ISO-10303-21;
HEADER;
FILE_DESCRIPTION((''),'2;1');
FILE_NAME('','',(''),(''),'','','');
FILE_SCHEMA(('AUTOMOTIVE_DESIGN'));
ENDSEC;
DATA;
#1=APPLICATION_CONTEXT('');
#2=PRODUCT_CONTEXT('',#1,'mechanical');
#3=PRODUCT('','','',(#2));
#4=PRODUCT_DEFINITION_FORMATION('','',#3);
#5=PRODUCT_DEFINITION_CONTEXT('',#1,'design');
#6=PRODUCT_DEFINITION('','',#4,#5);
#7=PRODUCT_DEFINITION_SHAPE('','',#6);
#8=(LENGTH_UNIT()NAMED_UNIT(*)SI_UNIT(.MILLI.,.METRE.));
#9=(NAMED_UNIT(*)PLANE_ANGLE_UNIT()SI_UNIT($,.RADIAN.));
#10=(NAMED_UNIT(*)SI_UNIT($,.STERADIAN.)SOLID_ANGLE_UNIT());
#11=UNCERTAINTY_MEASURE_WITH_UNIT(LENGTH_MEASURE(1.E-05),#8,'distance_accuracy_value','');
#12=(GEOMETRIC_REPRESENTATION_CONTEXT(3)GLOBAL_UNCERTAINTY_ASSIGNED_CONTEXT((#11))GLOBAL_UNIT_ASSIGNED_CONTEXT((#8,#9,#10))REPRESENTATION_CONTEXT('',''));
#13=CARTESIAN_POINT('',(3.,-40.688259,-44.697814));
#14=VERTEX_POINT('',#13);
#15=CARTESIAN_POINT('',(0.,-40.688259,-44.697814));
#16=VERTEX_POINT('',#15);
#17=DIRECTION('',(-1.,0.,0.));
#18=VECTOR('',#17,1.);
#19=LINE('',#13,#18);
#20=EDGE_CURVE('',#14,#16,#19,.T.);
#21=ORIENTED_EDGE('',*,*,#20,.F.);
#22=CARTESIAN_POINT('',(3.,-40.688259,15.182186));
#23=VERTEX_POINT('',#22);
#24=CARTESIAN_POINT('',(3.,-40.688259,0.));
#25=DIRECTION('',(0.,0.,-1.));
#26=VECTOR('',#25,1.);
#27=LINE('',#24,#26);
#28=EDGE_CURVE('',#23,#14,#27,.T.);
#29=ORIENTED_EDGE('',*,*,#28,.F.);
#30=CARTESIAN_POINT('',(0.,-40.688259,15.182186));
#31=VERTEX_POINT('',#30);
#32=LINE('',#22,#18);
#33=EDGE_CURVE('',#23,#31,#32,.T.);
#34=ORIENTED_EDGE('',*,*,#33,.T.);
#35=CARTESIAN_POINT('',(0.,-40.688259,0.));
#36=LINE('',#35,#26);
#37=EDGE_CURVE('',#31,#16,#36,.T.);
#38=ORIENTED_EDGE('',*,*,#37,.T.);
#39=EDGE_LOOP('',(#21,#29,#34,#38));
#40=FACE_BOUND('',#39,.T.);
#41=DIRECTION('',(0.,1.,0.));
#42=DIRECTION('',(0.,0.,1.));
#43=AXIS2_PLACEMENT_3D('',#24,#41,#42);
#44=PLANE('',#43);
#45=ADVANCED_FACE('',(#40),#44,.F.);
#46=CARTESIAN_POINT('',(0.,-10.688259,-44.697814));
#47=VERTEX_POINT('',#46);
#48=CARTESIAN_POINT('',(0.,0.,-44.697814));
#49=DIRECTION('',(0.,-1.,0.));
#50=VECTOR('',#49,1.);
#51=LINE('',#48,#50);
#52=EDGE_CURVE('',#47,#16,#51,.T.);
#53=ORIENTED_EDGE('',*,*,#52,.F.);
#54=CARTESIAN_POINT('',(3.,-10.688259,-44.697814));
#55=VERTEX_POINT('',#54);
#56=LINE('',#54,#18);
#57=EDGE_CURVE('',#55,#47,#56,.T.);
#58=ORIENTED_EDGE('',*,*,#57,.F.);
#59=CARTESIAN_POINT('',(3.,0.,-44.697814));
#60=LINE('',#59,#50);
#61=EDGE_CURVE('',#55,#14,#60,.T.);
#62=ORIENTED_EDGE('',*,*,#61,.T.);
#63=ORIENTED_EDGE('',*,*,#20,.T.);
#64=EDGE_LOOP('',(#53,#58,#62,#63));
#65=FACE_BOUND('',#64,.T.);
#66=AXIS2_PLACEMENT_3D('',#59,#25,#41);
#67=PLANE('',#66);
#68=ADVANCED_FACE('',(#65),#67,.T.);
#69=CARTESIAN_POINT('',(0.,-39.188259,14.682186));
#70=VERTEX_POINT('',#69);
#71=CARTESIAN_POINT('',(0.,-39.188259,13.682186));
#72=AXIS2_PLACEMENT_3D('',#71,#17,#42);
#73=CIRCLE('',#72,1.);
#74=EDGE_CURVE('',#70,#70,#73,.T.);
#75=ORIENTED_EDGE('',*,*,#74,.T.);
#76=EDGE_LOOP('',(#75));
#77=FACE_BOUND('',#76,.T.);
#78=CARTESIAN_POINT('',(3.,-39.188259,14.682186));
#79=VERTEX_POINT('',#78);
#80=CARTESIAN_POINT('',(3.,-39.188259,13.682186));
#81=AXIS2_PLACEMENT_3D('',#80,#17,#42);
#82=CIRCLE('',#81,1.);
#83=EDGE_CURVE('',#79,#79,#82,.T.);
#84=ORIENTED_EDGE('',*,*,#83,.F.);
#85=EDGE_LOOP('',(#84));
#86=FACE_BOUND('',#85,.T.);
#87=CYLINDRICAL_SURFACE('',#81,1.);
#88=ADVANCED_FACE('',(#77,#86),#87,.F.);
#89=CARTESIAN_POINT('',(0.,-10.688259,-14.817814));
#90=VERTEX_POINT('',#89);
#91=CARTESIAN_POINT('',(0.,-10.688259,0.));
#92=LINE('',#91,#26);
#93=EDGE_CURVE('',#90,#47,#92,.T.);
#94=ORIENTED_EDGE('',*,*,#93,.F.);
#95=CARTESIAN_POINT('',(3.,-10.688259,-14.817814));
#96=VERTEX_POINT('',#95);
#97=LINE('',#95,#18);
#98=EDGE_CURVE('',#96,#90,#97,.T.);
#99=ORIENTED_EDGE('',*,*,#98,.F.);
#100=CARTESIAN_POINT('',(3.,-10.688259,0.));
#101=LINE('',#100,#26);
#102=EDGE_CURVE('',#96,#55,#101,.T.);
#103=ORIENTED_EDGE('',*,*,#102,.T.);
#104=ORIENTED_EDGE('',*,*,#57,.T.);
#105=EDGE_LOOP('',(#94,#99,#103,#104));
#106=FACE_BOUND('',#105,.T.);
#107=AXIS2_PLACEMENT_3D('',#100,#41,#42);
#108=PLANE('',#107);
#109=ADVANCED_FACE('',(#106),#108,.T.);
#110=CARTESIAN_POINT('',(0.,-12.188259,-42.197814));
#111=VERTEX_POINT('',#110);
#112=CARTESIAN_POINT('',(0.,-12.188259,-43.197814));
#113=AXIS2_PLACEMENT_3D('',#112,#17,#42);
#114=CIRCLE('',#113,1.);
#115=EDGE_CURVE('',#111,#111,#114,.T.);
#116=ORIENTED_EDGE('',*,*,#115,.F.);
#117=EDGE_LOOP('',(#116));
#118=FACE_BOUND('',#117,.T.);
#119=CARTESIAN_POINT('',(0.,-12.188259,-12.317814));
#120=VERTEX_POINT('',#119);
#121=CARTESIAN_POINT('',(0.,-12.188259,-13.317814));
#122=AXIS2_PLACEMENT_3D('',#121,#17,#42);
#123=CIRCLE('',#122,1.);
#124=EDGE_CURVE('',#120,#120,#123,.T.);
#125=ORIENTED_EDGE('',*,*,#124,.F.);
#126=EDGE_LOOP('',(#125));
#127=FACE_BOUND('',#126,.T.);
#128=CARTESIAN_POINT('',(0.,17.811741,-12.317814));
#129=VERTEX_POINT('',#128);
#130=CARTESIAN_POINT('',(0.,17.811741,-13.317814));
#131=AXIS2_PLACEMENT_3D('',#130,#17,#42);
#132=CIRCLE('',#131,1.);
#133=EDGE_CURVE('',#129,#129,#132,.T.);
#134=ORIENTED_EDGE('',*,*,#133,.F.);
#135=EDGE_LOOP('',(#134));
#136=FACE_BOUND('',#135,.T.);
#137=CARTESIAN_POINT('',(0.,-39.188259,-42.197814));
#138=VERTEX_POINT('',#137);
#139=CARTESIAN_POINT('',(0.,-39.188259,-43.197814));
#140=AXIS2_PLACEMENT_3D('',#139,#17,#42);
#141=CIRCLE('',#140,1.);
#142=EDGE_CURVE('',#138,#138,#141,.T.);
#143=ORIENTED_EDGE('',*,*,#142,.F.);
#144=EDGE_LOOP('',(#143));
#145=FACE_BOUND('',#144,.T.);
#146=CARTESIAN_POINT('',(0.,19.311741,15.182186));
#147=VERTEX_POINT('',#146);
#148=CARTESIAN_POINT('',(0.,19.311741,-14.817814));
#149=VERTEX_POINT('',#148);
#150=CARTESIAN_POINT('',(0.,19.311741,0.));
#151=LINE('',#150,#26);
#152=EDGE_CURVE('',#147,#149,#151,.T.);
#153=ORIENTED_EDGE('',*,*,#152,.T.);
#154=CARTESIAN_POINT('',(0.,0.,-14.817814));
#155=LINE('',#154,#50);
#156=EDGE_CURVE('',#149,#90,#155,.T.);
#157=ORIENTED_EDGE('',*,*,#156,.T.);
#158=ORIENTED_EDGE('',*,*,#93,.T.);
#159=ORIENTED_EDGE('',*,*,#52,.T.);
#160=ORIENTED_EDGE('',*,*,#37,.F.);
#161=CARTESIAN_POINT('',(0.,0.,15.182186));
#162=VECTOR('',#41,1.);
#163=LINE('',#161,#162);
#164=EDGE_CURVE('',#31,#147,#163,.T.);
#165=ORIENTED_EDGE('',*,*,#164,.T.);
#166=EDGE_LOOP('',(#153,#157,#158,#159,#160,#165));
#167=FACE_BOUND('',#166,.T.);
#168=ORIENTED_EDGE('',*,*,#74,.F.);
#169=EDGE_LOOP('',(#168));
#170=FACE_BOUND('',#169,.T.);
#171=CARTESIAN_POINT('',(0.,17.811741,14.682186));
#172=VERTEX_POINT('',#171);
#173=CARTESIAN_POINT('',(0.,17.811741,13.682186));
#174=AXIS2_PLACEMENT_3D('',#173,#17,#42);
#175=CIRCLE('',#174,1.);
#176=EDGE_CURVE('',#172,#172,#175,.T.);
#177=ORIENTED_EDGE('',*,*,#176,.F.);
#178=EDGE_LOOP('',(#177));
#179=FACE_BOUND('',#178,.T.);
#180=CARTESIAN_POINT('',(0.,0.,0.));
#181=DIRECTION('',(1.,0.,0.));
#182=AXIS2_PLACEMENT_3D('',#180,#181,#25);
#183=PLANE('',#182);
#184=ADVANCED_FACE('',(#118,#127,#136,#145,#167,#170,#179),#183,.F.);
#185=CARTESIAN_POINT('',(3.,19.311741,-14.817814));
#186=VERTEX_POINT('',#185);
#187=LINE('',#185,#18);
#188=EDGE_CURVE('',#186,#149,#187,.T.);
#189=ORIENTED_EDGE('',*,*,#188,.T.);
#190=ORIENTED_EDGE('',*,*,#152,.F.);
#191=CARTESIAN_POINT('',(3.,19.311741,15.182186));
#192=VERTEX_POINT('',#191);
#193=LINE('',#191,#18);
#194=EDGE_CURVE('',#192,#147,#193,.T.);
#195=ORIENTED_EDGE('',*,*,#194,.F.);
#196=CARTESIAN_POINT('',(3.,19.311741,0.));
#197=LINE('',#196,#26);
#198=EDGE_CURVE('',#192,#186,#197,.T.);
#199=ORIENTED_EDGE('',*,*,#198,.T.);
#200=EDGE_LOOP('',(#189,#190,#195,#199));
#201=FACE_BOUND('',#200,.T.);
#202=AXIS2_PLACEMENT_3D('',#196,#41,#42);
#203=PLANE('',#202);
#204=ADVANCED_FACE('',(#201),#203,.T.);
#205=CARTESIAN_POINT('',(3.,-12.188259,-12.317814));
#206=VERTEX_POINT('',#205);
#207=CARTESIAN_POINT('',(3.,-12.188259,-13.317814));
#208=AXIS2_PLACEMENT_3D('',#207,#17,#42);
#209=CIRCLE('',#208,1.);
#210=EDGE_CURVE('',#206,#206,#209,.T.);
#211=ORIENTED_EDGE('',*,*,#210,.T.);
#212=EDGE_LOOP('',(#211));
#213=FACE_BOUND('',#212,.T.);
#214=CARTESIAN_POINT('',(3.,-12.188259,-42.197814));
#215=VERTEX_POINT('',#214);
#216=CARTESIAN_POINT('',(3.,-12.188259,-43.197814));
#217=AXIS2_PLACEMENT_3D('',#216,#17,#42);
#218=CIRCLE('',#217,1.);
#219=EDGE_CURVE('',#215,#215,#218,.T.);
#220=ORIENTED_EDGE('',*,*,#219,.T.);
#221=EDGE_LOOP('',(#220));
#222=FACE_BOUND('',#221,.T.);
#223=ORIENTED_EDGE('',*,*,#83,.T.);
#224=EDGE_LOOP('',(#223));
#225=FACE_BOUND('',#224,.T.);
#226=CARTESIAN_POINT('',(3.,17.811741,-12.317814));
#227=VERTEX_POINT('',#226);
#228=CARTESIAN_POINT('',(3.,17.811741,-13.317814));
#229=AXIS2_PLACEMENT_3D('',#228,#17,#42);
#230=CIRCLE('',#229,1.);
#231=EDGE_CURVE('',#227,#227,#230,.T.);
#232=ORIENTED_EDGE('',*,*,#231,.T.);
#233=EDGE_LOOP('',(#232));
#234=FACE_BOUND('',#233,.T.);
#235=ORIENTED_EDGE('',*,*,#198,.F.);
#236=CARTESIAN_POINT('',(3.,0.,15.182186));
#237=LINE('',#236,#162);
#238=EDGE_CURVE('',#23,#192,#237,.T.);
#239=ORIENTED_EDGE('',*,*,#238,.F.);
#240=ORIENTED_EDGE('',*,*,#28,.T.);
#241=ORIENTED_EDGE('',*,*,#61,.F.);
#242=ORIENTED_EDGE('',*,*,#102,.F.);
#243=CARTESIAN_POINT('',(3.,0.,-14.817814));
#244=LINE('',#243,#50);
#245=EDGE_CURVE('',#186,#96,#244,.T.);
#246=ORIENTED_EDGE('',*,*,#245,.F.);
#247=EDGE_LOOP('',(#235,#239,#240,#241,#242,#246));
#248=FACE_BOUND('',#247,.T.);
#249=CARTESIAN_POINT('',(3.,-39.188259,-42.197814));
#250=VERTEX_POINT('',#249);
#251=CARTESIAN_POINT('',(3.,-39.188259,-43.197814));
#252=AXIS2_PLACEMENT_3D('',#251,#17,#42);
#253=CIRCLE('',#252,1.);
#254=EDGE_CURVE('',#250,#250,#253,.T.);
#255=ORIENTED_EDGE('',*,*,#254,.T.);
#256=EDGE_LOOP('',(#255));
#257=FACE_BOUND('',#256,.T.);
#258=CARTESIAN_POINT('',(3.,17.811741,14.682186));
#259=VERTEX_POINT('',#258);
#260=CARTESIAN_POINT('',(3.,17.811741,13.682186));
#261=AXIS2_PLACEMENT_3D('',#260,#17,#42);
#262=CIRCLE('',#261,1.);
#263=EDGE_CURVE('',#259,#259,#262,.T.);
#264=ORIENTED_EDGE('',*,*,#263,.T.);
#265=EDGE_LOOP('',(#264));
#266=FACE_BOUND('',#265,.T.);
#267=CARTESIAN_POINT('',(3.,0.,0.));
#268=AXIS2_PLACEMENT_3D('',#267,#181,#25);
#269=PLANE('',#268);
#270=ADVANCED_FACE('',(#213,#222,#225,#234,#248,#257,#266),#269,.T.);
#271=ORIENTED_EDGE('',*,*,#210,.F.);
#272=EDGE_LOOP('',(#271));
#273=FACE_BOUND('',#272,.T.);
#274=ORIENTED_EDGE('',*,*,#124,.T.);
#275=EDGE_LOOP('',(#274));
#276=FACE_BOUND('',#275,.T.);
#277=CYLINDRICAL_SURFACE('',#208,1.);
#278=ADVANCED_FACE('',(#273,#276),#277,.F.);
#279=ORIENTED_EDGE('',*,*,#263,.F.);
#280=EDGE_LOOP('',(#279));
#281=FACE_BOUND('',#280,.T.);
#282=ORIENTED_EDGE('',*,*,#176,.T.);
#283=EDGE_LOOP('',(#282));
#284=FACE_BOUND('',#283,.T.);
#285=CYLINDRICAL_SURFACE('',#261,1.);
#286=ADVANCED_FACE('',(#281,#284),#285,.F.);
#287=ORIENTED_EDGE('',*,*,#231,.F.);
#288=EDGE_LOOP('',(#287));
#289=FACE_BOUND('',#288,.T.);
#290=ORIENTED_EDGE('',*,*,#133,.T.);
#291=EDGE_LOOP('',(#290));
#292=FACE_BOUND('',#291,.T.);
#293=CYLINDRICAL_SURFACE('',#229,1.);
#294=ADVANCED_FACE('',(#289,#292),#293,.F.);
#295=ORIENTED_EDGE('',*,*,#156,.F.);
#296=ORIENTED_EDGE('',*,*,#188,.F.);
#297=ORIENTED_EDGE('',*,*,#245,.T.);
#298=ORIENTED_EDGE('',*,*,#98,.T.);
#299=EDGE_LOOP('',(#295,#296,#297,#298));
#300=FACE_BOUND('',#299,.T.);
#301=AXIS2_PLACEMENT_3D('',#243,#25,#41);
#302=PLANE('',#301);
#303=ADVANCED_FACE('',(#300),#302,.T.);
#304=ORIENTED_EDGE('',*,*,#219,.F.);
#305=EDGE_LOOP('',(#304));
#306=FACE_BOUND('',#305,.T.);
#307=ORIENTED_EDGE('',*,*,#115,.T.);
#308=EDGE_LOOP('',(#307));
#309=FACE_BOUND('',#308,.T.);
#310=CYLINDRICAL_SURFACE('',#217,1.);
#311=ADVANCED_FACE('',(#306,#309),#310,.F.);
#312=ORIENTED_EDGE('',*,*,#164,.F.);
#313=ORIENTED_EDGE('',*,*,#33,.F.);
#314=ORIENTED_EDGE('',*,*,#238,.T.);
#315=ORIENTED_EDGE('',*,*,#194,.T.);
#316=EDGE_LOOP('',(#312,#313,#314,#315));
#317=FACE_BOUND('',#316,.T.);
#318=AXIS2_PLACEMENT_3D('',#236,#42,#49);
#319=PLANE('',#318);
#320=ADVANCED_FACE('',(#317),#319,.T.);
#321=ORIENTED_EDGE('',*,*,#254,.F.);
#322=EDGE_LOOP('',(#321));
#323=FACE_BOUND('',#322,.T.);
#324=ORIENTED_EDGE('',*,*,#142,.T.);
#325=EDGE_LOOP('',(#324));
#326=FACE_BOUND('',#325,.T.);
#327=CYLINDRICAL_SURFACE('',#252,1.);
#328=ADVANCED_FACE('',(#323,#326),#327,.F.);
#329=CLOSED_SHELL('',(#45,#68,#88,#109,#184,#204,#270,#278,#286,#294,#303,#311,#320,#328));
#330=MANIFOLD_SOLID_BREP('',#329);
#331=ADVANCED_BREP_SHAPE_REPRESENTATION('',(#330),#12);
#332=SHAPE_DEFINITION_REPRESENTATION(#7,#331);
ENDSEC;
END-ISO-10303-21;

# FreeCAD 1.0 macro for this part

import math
import FreeCAD as App
import Part
import Sketcher

V = App.Vector
Q = App.Units.Quantity

doc = App.newDocument("Part")
params = doc.addObject("Spreadsheet::Sheet", "Params")
for row, (alias, value) in enumerate([
    ("sketch1_width", "30 mm"),
    ("sketch1_height", "29.88 mm"),
    ("pad1_length", "3 mm"),
    ("sketch2_radius", "1 mm"),
    ("pocket1_length", "3 mm"),
], start=1):
    params.set(f"A{row}", alias)
    params.set(f"B{row}", "=" + value)
    params.setAlias(f"B{row}", alias)

body = doc.addObject("PartDesign::Body", "Body")

# Sketch on YZ plane
sketch1 = doc.addObject("Sketcher::SketchObject", "Sketch")
body.addObject(sketch1)
sketch1.AttachmentSupport = (doc.YZ_Plane, [""])
sketch1.MapMode = "FlatFace"
sketch1.addGeometry(Part.LineSegment(V(-40.688259, -44.697814, 0), V(-10.688259, -44.697814, 0)), False)
sketch1.addGeometry(Part.LineSegment(V(-10.688259, -44.697814, 0), V(-10.688259, -14.817814, 0)), False)
sketch1.addGeometry(Part.LineSegment(V(-10.688259, -14.817814, 0), V(19.311741, -14.817814, 0)), False)
sketch1.addGeometry(Part.LineSegment(V(19.311741, -14.817814, 0), V(19.311741, 15.182186, 0)), False)
sketch1.addGeometry(Part.LineSegment(V(19.311741, 15.182186, 0), V(-40.688259, 15.182186, 0)), False)
sketch1.addGeometry(Part.LineSegment(V(-40.688259, 15.182186, 0), V(-40.688259, -44.697814, 0)), False)
sketch1.addConstraint(Sketcher.Constraint("Coincident", 0, 2, 1, 1))
sketch1.addConstraint(Sketcher.Constraint("Coincident", 1, 2, 2, 1))
sketch1.addConstraint(Sketcher.Constraint("Coincident", 2, 2, 3, 1))
sketch1.addConstraint(Sketcher.Constraint("Coincident", 3, 2, 4, 1))
sketch1.addConstraint(Sketcher.Constraint("Coincident", 4, 2, 5, 1))
sketch1.addConstraint(Sketcher.Constraint("Coincident", 5, 2, 0, 1))
sketch1.addConstraint(Sketcher.Constraint("Horizontal", 0))
sketch1.addConstraint(Sketcher.Constraint("Vertical", 1))
sketch1.addConstraint(Sketcher.Constraint("Horizontal", 2))
sketch1.addConstraint(Sketcher.Constraint("Vertical", 3))
sketch1.addConstraint(Sketcher.Constraint("Horizontal", 4))
sketch1.addConstraint(Sketcher.Constraint("Vertical", 5))
sketch1.addConstraint(Sketcher.Constraint("Equal", 0, 2))
sketch1.addConstraint(Sketcher.Constraint("Equal", 2, 3))
sketch1.addConstraint(Sketcher.Constraint("DistanceX", 0, 1, 0, 2, Q("30 mm")))
sketch1.addConstraint(Sketcher.Constraint("DistanceY", 1, 1, 1, 2, Q("29.88 mm")))
sketch1.addConstraint(Sketcher.Constraint("DistanceX", 0, 2, -1, 1, Q("10.688259 mm")))
sketch1.addConstraint(Sketcher.Constraint("DistanceY", 0, 2, -1, 1, Q("44.697814 mm")))
sketch1.setExpression("Constraints[14]", "Params.sketch1_width")
sketch1.setExpression("Constraints[15]", "Params.sketch1_height")
pad1 = doc.addObject("PartDesign::Pad", "Pad")
body.addObject(pad1)
pad1.Profile = sketch1
pad1.setExpression("Length", "Params.pad1_length")

# Sketch on YZ plane
sketch2 = doc.addObject("Sketcher::SketchObject", "Sketch001")
body.addObject(sketch2)
sketch2.AttachmentSupport = (doc.YZ_Plane, [""])
sketch2.MapMode = "FlatFace"
sketch2.addGeometry(Part.ArcOfCircle(Part.Circle(V(-39.188259, -43.197814, 0), V(0, 0, 1), 1), math.radians(45), math.radians(90)), False)
sketch2.addGeometry(Part.ArcOfCircle(Part.Circle(V(-39.188259, -43.197814, 0), V(0, 0, 1), 1), math.radians(-135), math.radians(45)), False)
sketch2.addGeometry(Part.ArcOfCircle(Part.Circle(V(-39.188259, -43.197814, 0), V(0, 0, 1), 1), math.radians(90), math.radians(225)), False)
sketch2.addGeometry(Part.ArcOfCircle(Part.Circle(V(-12.188259, -43.197814, 0), V(0, 0, 1), 1), math.radians(135), math.radians(315)), False)
sketch2.addGeometry(Part.ArcOfCircle(Part.Circle(V(-12.188259, -43.197814, 0), V(0, 0, 1), 1), math.radians(90), math.radians(135)), False)
sketch2.addGeometry(Part.ArcOfCircle(Part.Circle(V(-12.188259, -43.197814, 0), V(0, 0, 1), 1), math.radians(-45), math.radians(90)), False)
sketch2.addGeometry(Part.ArcOfCircle(Part.Circle(V(-12.188259, -13.317814, 0), V(0, 0, 1), 1), math.radians(135), math.radians(315)), False)
sketch2.addGeometry(Part.ArcOfCircle(Part.Circle(V(-12.188259, -13.317814, 0), V(0, 0, 1), 1), math.radians(90), math.radians(135)), False)
sketch2.addGeometry(Part.ArcOfCircle(Part.Circle(V(-12.188259, -13.317814, 0), V(0, 0, 1), 1), math.radians(-45), math.radians(90)), False)
sketch2.addGeometry(Part.ArcOfCircle(Part.Circle(V(17.811741, -13.317814, 0), V(0, 0, 1), 1), math.radians(135), math.radians(315)), False)
sketch2.addGeometry(Part.ArcOfCircle(Part.Circle(V(17.811741, -13.317814, 0), V(0, 0, 1), 1), math.radians(90), math.radians(135)), False)
sketch2.addGeometry(Part.ArcOfCircle(Part.Circle(V(17.811741, -13.317814, 0), V(0, 0, 1), 1), math.radians(-45), math.radians(90)), False)
sketch2.addGeometry(Part.ArcOfCircle(Part.Circle(V(17.811741, 13.682186, 0), V(0, 0, 1), 1), math.radians(-135), math.radians(45)), False)
sketch2.addGeometry(Part.ArcOfCircle(Part.Circle(V(17.811741, 13.682186, 0), V(0, 0, 1), 1), math.radians(90), math.radians(225)), False)
sketch2.addGeometry(Part.ArcOfCircle(Part.Circle(V(17.811741, 13.682186, 0), V(0, 0, 1), 1), math.radians(45), math.radians(90)), False)
sketch2.addGeometry(Part.ArcOfCircle(Part.Circle(V(-39.188259, 13.682186, 0), V(0, 0, 1), 1), math.radians(-45), math.radians(90)), False)
sketch2.addGeometry(Part.ArcOfCircle(Part.Circle(V(-39.188259, 13.682186, 0), V(0, 0, 1), 1), math.radians(135), math.radians(315)), False)
sketch2.addGeometry(Part.ArcOfCircle(Part.Circle(V(-39.188259, 13.682186, 0), V(0, 0, 1), 1), math.radians(90), math.radians(135)), False)
sketch2.addConstraint(Sketcher.Constraint("Tangent", 0, 1, 1, 2))
sketch2.addConstraint(Sketcher.Constraint("Tangent", 1, 1, 2, 2))
sketch2.addConstraint(Sketcher.Constraint("Tangent", 2, 1, 0, 2))
sketch2.addConstraint(Sketcher.Constraint("Tangent", 3, 1, 4, 2))
sketch2.addConstraint(Sketcher.Constraint("Tangent", 4, 1, 5, 2))
sketch2.addConstraint(Sketcher.Constraint("Tangent", 5, 1, 3, 2))
sketch2.addConstraint(Sketcher.Constraint("Tangent", 6, 1, 7, 2))
sketch2.addConstraint(Sketcher.Constraint("Tangent", 7, 1, 8, 2))
sketch2.addConstraint(Sketcher.Constraint("Tangent", 8, 1, 6, 2))
sketch2.addConstraint(Sketcher.Constraint("Tangent", 9, 1, 10, 2))
sketch2.addConstraint(Sketcher.Constraint("Tangent", 10, 1, 11, 2))
sketch2.addConstraint(Sketcher.Constraint("Tangent", 11, 1, 9, 2))
sketch2.addConstraint(Sketcher.Constraint("Tangent", 12, 1, 13, 2))
sketch2.addConstraint(Sketcher.Constraint("Tangent", 13, 1, 14, 2))
sketch2.addConstraint(Sketcher.Constraint("Tangent", 14, 1, 12, 2))
sketch2.addConstraint(Sketcher.Constraint("Tangent", 15, 1, 16, 2))
sketch2.addConstraint(Sketcher.Constraint("Tangent", 16, 1, 17, 2))
sketch2.addConstraint(Sketcher.Constraint("Tangent", 17, 1, 15, 2))
sketch2.addConstraint(Sketcher.Constraint("Equal", 2, 3))
sketch2.addConstraint(Sketcher.Constraint("Equal", 5, 6))
sketch2.addConstraint(Sketcher.Constraint("Equal", 8, 9))
sketch2.addConstraint(Sketcher.Constraint("Equal", 11, 12))
sketch2.addConstraint(Sketcher.Constraint("Equal", 14, 15))
sketch2.addConstraint(Sketcher.Constraint("Horizontal", 2, 3, 3, 3))
sketch2.addConstraint(Sketcher.Constraint("Horizontal", 8, 3, 9, 3))
sketch2.addConstraint(Sketcher.Constraint("Horizontal", 14, 3, 15, 3))
sketch2.addConstraint(Sketcher.Constraint("Horizontal", 0, 1, 3, 1))
sketch2.addConstraint(Sketcher.Constraint("Horizontal", 1, 1, 5, 1))
sketch2.addConstraint(Sketcher.Constraint("Horizontal", 6, 1, 9, 1))
sketch2.addConstraint(Sketcher.Constraint("Horizontal", 8, 1, 11, 1))
sketch2.addConstraint(Sketcher.Constraint("Horizontal", 12, 1, 15, 1))
sketch2.addConstraint(Sketcher.Constraint("Horizontal", 14, 1, 16, 1))
sketch2.addConstraint(Sketcher.Constraint("Vertical", 5, 3, 6, 3))
sketch2.addConstraint(Sketcher.Constraint("Vertical", 11, 3, 12, 3))
sketch2.addConstraint(Sketcher.Constraint("Vertical", 2, 3, 15, 3))
sketch2.addConstraint(Sketcher.Constraint("Vertical", 17, 3, 2, 1))
sketch2.addConstraint(Sketcher.Constraint("Vertical", 8, 3, 4, 1))
sketch2.addConstraint(Sketcher.Constraint("Vertical", 3, 1, 6, 1))
sketch2.addConstraint(Sketcher.Constraint("Vertical", 4, 1, 7, 1))
sketch2.addConstraint(Sketcher.Constraint("Vertical", 5, 1, 8, 1))
sketch2.addConstraint(Sketcher.Constraint("Vertical", 14, 3, 10, 1))
sketch2.addConstraint(Sketcher.Constraint("Vertical", 9, 1, 12, 1))
sketch2.addConstraint(Sketcher.Constraint("Vertical", 10, 1, 13, 1))
sketch2.addConstraint(Sketcher.Constraint("Vertical", 11, 1, 14, 1))
sketch2.addConstraint(Sketcher.Constraint("Vertical", 2, 1, 17, 1))
sketch2.addConstraint(Sketcher.Constraint("Radius", 0, Q("1 mm")))
sketch2.addConstraint(Sketcher.Constraint("DistanceX", 1, 3, 3, 3, Q("27 mm")))
sketch2.addConstraint(Sketcher.Constraint("DistanceX", 7, 3, 9, 3, Q("30 mm")))
sketch2.addConstraint(Sketcher.Constraint("DistanceY", 9, 3, 12, 3, Q("27 mm")))
sketch2.addConstraint(Sketcher.Constraint("DistanceX", 16, 1, 6, 1, Q("27 mm")))
sketch2.addConstraint(Sketcher.Constraint("DistanceY", 3, 3, 6, 3, Q("29.88 mm")))
sketch2.addConstraint(Sketcher.Constraint("DistanceX", 0, 3, -1, 1, Q("39.188259 mm")))
sketch2.addConstraint(Sketcher.Constraint("DistanceY", 1, 1, -1, 1, Q("43.904921 mm")))
sketch2.addConstraint(Sketcher.Constraint("DistanceY", 0, 3, -1, 1, Q("43.197814 mm")))
sketch2.setExpression("Constraints[45]", "Params.sketch2_radius")
pocket1 = doc.addObject("PartDesign::Pocket", "Pocket")
body.addObject(pocket1)
pocket1.Profile = sketch2
pocket1.setExpression("Length", "Params.pocket1_length")
pocket1.Reversed = True

doc.recompute()
